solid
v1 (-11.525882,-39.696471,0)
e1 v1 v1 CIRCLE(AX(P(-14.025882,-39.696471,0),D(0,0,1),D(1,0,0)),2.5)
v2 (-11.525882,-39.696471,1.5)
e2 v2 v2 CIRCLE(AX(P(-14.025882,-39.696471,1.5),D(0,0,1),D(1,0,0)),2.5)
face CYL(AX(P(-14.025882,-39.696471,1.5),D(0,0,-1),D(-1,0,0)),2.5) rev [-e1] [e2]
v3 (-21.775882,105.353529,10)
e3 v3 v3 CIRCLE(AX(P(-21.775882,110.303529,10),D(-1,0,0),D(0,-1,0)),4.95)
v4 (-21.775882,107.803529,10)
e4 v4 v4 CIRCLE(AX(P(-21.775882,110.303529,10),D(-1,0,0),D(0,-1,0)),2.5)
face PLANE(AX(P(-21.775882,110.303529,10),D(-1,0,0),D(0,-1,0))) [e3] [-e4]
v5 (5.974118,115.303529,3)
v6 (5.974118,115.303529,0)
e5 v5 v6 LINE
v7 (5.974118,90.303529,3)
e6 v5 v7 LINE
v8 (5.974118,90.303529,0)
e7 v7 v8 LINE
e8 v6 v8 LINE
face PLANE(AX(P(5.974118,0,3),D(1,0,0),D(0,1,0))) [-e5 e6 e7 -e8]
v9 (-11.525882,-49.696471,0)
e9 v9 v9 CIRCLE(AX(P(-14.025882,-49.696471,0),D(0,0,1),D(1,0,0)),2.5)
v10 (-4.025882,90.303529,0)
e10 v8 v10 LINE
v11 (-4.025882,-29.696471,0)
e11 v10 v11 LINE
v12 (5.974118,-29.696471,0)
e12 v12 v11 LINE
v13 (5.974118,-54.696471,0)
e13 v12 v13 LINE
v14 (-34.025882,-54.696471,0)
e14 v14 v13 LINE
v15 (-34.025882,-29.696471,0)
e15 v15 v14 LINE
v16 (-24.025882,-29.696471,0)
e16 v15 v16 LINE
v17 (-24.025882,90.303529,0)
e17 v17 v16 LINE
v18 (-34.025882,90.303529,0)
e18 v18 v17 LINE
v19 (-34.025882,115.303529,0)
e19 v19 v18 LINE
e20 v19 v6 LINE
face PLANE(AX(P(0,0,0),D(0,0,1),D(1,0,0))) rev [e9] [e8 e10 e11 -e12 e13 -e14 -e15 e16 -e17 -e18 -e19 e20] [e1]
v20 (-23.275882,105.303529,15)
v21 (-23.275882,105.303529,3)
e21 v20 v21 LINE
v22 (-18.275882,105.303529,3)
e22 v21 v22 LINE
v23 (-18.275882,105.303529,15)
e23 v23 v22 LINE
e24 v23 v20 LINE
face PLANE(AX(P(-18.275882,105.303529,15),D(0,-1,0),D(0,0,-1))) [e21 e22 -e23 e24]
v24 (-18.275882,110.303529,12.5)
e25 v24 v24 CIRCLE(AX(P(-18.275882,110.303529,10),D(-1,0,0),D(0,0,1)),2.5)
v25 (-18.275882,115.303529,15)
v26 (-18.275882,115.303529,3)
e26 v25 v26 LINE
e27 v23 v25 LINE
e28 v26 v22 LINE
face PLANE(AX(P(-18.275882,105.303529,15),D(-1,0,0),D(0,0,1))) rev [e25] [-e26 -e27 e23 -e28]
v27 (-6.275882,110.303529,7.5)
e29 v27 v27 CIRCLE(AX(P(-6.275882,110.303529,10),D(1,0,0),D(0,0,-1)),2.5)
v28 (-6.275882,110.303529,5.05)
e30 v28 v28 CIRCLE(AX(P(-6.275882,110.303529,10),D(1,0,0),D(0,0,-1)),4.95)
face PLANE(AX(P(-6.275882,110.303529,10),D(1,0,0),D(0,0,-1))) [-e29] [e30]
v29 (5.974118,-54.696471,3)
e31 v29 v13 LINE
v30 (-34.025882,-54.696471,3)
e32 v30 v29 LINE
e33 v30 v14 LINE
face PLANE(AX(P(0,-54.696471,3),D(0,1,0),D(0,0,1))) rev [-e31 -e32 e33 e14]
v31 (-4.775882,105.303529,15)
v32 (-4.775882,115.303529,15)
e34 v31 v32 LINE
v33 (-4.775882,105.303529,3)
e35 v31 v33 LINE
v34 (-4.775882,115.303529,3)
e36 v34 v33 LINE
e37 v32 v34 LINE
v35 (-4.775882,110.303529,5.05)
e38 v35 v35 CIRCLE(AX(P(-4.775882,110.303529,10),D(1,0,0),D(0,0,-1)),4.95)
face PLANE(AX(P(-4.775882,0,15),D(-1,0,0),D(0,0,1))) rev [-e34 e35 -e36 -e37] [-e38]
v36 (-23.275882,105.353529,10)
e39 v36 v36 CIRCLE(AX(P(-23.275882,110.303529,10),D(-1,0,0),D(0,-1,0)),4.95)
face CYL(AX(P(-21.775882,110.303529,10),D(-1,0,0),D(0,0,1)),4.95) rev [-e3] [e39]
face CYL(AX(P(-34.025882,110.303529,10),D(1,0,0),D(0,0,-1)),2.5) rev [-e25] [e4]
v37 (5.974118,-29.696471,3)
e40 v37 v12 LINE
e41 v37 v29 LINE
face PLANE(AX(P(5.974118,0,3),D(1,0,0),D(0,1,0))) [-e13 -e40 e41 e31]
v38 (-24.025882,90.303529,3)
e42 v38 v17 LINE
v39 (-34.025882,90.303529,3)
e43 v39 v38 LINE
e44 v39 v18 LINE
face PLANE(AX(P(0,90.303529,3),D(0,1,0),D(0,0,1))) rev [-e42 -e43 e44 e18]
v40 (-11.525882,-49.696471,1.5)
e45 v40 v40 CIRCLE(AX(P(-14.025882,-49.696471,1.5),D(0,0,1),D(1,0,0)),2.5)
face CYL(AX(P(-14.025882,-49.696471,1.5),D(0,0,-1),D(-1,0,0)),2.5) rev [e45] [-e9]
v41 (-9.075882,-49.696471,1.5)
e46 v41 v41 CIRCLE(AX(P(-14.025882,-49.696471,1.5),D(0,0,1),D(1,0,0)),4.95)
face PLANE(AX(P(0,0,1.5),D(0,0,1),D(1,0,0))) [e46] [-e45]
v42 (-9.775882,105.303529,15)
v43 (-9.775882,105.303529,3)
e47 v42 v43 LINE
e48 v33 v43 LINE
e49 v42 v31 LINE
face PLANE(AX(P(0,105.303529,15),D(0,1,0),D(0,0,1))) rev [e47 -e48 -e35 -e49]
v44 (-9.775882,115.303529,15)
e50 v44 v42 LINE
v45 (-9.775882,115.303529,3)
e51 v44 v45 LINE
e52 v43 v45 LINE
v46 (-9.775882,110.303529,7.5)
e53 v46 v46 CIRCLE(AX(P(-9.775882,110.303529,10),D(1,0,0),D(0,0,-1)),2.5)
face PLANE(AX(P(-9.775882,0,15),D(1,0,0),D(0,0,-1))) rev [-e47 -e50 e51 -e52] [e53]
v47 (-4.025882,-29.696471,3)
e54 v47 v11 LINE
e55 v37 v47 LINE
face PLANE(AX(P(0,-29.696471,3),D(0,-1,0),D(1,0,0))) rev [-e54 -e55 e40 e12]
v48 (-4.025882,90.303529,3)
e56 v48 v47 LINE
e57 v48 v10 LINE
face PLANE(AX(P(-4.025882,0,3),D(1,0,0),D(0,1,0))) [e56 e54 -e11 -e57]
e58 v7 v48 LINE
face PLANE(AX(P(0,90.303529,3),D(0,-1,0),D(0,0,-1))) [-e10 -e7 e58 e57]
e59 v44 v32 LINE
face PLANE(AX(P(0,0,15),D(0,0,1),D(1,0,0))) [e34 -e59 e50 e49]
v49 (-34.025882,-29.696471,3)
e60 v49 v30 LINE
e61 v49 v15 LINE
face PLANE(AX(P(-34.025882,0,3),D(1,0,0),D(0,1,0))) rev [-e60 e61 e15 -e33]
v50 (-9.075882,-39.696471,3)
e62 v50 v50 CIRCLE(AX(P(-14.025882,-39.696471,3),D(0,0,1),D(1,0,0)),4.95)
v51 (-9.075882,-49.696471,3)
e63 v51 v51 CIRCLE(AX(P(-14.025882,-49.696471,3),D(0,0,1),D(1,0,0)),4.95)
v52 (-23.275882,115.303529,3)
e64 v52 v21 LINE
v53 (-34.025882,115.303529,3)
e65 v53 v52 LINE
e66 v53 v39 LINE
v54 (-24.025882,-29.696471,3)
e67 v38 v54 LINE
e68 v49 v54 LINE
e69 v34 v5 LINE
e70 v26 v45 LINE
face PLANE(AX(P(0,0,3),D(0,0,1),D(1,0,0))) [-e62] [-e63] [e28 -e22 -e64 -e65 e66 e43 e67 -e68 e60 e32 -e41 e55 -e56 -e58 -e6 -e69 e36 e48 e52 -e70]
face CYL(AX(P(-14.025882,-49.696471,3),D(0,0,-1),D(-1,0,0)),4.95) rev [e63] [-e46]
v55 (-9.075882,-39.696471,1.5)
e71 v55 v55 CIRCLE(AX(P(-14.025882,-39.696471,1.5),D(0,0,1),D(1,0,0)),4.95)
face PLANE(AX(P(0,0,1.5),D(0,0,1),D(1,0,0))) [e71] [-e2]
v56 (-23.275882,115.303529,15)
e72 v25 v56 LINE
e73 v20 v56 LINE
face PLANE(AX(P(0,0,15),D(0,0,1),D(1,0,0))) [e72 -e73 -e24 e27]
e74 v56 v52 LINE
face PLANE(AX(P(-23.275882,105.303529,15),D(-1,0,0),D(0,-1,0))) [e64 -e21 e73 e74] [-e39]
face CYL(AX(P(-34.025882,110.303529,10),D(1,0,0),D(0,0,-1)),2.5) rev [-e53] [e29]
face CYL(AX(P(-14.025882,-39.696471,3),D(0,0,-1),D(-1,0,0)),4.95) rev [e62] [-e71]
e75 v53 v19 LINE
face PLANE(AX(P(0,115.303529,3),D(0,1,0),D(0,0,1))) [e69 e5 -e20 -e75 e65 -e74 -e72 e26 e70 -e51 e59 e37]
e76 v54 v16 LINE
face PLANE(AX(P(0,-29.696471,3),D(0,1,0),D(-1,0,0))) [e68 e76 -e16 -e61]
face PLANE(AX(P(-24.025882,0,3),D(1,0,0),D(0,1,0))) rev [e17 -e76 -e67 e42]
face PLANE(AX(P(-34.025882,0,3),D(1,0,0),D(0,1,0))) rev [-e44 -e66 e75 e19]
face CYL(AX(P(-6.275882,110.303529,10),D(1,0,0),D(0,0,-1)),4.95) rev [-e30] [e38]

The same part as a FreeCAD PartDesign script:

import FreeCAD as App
import Part
import Sketcher

V = App.Vector

doc = App.newDocument("Part")
body = doc.addObject("PartDesign::Body", "Body")

# Sketch on XY plane
sketch1 = body.newObject("Sketcher::SketchObject", "Sketch")
sketch1.AttachmentSupport = (doc.getObject("XY_Plane"), [""])
sketch1.MapMode = "FlatFace"
sketch1.addGeometry(Part.LineSegment(V(-34, 115.3, 0), V(-34, 90.3, 0)), False)
sketch1.addGeometry(Part.LineSegment(V(-34, 90.3, 0), V(-24, 90.3, 0)), False)
sketch1.addGeometry(Part.LineSegment(V(-24, 90.3, 0), V(-24, -29.7, 0)), False)
sketch1.addGeometry(Part.LineSegment(V(-24, -29.7, 0), V(-34, -29.7, 0)), False)
sketch1.addGeometry(Part.LineSegment(V(-34, -29.7, 0), V(-34, -54.7, 0)), False)
sketch1.addGeometry(Part.LineSegment(V(-34, -54.7, 0), V(6, -54.7, 0)), False)
sketch1.addGeometry(Part.LineSegment(V(6, -54.7, 0), V(6, -29.7, 0)), False)
sketch1.addGeometry(Part.LineSegment(V(6, -29.7, 0), V(-4, -29.7, 0)), False)
sketch1.addGeometry(Part.LineSegment(V(-4, -29.7, 0), V(-4, 90.3, 0)), False)
sketch1.addGeometry(Part.LineSegment(V(-4, 90.3, 0), V(6, 90.3, 0)), False)
sketch1.addGeometry(Part.LineSegment(V(6, 90.3, 0), V(6, 115.3, 0)), False)
sketch1.addGeometry(Part.LineSegment(V(6, 115.3, 0), V(-34, 115.3, 0)), False)
sketch1.addGeometry(Part.Circle(V(-14, -49.7, 0), V(0, 0, 1), 5), False)
sketch1.addGeometry(Part.Circle(V(-14, -39.7, 0), V(0, 0, 1), 5), False)
sketch1.addConstraint(Sketcher.Constraint("Coincident", 0, 2, 1, 1))
sketch1.addConstraint(Sketcher.Constraint("Coincident", 1, 2, 2, 1))
sketch1.addConstraint(Sketcher.Constraint("Coincident", 2, 2, 3, 1))
sketch1.addConstraint(Sketcher.Constraint("Coincident", 3, 2, 4, 1))
sketch1.addConstraint(Sketcher.Constraint("Coincident", 4, 2, 5, 1))
sketch1.addConstraint(Sketcher.Constraint("Coincident", 5, 2, 6, 1))
sketch1.addConstraint(Sketcher.Constraint("Coincident", 6, 2, 7, 1))
sketch1.addConstraint(Sketcher.Constraint("Coincident", 7, 2, 8, 1))
sketch1.addConstraint(Sketcher.Constraint("Coincident", 8, 2, 9, 1))
sketch1.addConstraint(Sketcher.Constraint("Coincident", 9, 2, 10, 1))
sketch1.addConstraint(Sketcher.Constraint("Coincident", 10, 2, 11, 1))
sketch1.addConstraint(Sketcher.Constraint("Coincident", 11, 2, 0, 1))
sketch1.addConstraint(Sketcher.Constraint("Vertical", 0))
sketch1.addConstraint(Sketcher.Constraint("Horizontal", 1))
sketch1.addConstraint(Sketcher.Constraint("Vertical", 2))
sketch1.addConstraint(Sketcher.Constraint("Horizontal", 3))
sketch1.addConstraint(Sketcher.Constraint("Vertical", 4))
sketch1.addConstraint(Sketcher.Constraint("Horizontal", 5))
sketch1.addConstraint(Sketcher.Constraint("Vertical", 6))
sketch1.addConstraint(Sketcher.Constraint("Horizontal", 7))
sketch1.addConstraint(Sketcher.Constraint("Vertical", 8))
sketch1.addConstraint(Sketcher.Constraint("Horizontal", 9))
sketch1.addConstraint(Sketcher.Constraint("Vertical", 10))
sketch1.addConstraint(Sketcher.Constraint("Horizontal", 11))
sketch1.addConstraint(Sketcher.Constraint("Equal", 12, 13))
sketch1.addConstraint(Sketcher.Constraint("Horizontal", 3, 2, 6, 2))
sketch1.addConstraint(Sketcher.Constraint("Horizontal", 1, 2, 8, 2))
sketch1.addConstraint(Sketcher.Constraint("Vertical", 12, 3, 13, 3))
sketch1.addConstraint(Sketcher.Constraint("Vertical", 0, 2, 3, 2))
sketch1.addConstraint(Sketcher.Constraint("Vertical", 6, 2, 9, 2))
sketch1.addConstraint(Sketcher.Constraint("Equal", 3, 7))
sketch1.addConstraint(Sketcher.Constraint("Equal", 0, 4))
sketch1.addConstraint(Sketcher.Constraint("Diameter", 12, 9.9))
sketch1.addConstraint(Sketcher.Constraint("DistanceX", 1, 1, 1, 2, 10.0))
sketch1.addConstraint(Sketcher.Constraint("DistanceX", 5, 1, 5, 2, 40.0))
sketch1.addConstraint(Sketcher.Constraint("DistanceY", 0, 2, 0, 1, 25.0))
sketch1.addConstraint(Sketcher.Constraint("DistanceY", 2, 2, 2, 1, 120.0))
sketch1.addConstraint(Sketcher.Constraint("DistanceY", 12, 3, 13, 3, 10.0))
sketch1.addConstraint(Sketcher.Constraint("DistanceX", 0, 2, 13, 3, 20.0))
sketch1.addConstraint(Sketcher.Constraint("DistanceY", 13, 3, 0, 2, 130.0))
sketch1.addConstraint(Sketcher.Constraint("DistanceY", 12, 3, -1, 1, 49.696471))
sketch1.addConstraint(Sketcher.Constraint("DistanceX", 12, 3, -1, 1, 14.025882))
pad1 = body.newObject("PartDesign::Pad", "Pad")
pad1.Profile = sketch1
pad1.Length = 3

# Sketch on XY plane
sketch2 = body.newObject("Sketcher::SketchObject", "Sketch001")
sketch2.AttachmentSupport = (doc.getObject("XY_Plane"), [""])
sketch2.MapMode = "FlatFace"
sketch2.addGeometry(Part.Circle(V(-14, -39.7, 0), V(0, 0, 1), 5), False)
sketch2.addGeometry(Part.Circle(V(-14, -39.7, 0), V(0, 0, 1), 2.5), False)
sketch2.addGeometry(Part.Circle(V(-14, -49.7, 0), V(0, 0, 1), 5), False)
sketch2.addGeometry(Part.Circle(V(-14, -49.7, 0), V(0, 0, 1), 2.5), False)
sketch2.addConstraint(Sketcher.Constraint("Coincident", 1, 3, 0, 3))
sketch2.addConstraint(Sketcher.Constraint("Coincident", 3, 3, 2, 3))
sketch2.addConstraint(Sketcher.Constraint("Equal", 0, 2))
sketch2.addConstraint(Sketcher.Constraint("Equal", 1, 3))
sketch2.addConstraint(Sketcher.Constraint("Vertical", 1, 3, 2, 3))
sketch2.addConstraint(Sketcher.Constraint("Diameter", 1, 5.0))
sketch2.addConstraint(Sketcher.Constraint("Diameter", 0, 9.9))
sketch2.addConstraint(Sketcher.Constraint("DistanceY", 2, 3, 0, 3, 10.0))
sketch2.addConstraint(Sketcher.Constraint("DistanceY", 0, 3, -1, 1, 39.696471))
sketch2.addConstraint(Sketcher.Constraint("DistanceX", 0, 3, -1, 1, 14.025882))
pad2 = body.newObject("PartDesign::Pad", "Pad001")
pad2.Profile = sketch2
pad2.Length = 1.5

# Sketch on XY plane
sketch3 = body.newObject("Sketcher::SketchObject", "Sketch002")
sketch3.AttachmentSupport = (doc.getObject("XY_Plane"), [""])
sketch3.MapMode = "FlatFace"
sketch3.addGeometry(Part.LineSegment(V(-10, 115, 0), V(-10, 105, 0)), False)
sketch3.addGeometry(Part.LineSegment(V(-10, 105, 0), V(-5, 105, 0)), False)
sketch3.addGeometry(Part.LineSegment(V(-5, 105, 0), V(-5, 115, 0)), False)
sketch3.addGeometry(Part.LineSegment(V(-5, 115, 0), V(-10, 115, 0)), False)
sketch3.addGeometry(Part.LineSegment(V(-23, 115, 0), V(-23, 105, 0)), False)
sketch3.addGeometry(Part.LineSegment(V(-23, 105, 0), V(-18, 105, 0)), False)
sketch3.addGeometry(Part.LineSegment(V(-18, 105, 0), V(-18, 115, 0)), False)
sketch3.addGeometry(Part.LineSegment(V(-18, 115, 0), V(-23, 115, 0)), False)
sketch3.addConstraint(Sketcher.Constraint("Coincident", 0, 2, 1, 1))
sketch3.addConstraint(Sketcher.Constraint("Coincident", 1, 2, 2, 1))
sketch3.addConstraint(Sketcher.Constraint("Coincident", 2, 2, 3, 1))
sketch3.addConstraint(Sketcher.Constraint("Coincident", 3, 2, 0, 1))
sketch3.addConstraint(Sketcher.Constraint("Coincident", 4, 2, 5, 1))
sketch3.addConstraint(Sketcher.Constraint("Coincident", 5, 2, 6, 1))
sketch3.addConstraint(Sketcher.Constraint("Coincident", 6, 2, 7, 1))
sketch3.addConstraint(Sketcher.Constraint("Coincident", 7, 2, 4, 1))
sketch3.addConstraint(Sketcher.Constraint("Vertical", 0))
sketch3.addConstraint(Sketcher.Constraint("Horizontal", 1))
sketch3.addConstraint(Sketcher.Constraint("Vertical", 2))
sketch3.addConstraint(Sketcher.Constraint("Horizontal", 3))
sketch3.addConstraint(Sketcher.Constraint("Vertical", 4))
sketch3.addConstraint(Sketcher.Constraint("Horizontal", 5))
sketch3.addConstraint(Sketcher.Constraint("Vertical", 6))
sketch3.addConstraint(Sketcher.Constraint("Horizontal", 7))
sketch3.addConstraint(Sketcher.Constraint("Horizontal", 1, 2, 4, 2))
sketch3.addConstraint(Sketcher.Constraint("Horizontal", 3, 2, 6, 2))
sketch3.addConstraint(Sketcher.Constraint("Equal", 3, 5))
sketch3.addConstraint(Sketcher.Constraint("DistanceX", 1, 1, 1, 2, 5.0))
sketch3.addConstraint(Sketcher.Constraint("DistanceY", 0, 2, 0, 1, 10.0))
sketch3.addConstraint(Sketcher.Constraint("DistanceX", 4, 2, 0, 2, 13.5))
sketch3.addConstraint(Sketcher.Constraint("DistanceY", -1, 1, 0, 2, 105.303529))
sketch3.addConstraint(Sketcher.Constraint("DistanceX", 0, 2, -1, 1, 9.775882))
pad3 = body.newObject("PartDesign::Pad", "Pad002")
pad3.Profile = sketch3
pad3.Length = 15

# Sketch on YZ plane
sketch4 = body.newObject("Sketcher::SketchObject", "Sketch003")
sketch4.AttachmentSupport = (doc.getObject("YZ_Plane"), [""])
sketch4.MapMode = "FlatFace"
sketch4.AttachmentOffset = App.Placement(V(0, 0, -4.775882), App.Rotation())
sketch4.addGeometry(Part.Circle(V(110.3, 10, 0), V(0, 0, 1), 5), False)
sketch4.addGeometry(Part.Circle(V(110.3, 10, 0), V(0, 0, 1), 2.5), False)
sketch4.addConstraint(Sketcher.Constraint("Coincident", 1, 3, 0, 3))
sketch4.addConstraint(Sketcher.Constraint("Diameter", 1, 5.0))
sketch4.addConstraint(Sketcher.Constraint("Diameter", 0, 9.9))
sketch4.addConstraint(Sketcher.Constraint("DistanceY", -1, 1, 0, 3, 10.0))
sketch4.addConstraint(Sketcher.Constraint("DistanceX", -1, 1, 0, 3, 110.303529))
pocket1 = body.newObject("PartDesign::Pocket", "Pocket")
pocket1.Profile = sketch4
pocket1.Length = 1.5

# Sketch on YZ plane
sketch5 = body.newObject("Sketcher::SketchObject", "Sketch004")
sketch5.AttachmentSupport = (doc.getObject("YZ_Plane"), [""])
sketch5.MapMode = "FlatFace"
sketch5.AttachmentOffset = App.Placement(V(0, 0, -21.775882), App.Rotation())
sketch5.addGeometry(Part.Circle(V(110.3, 10, 0), V(0, 0, 1), 5), False)
sketch5.addGeometry(Part.Circle(V(110.3, 10, 0), V(0, 0, 1), 2.5), False)
sketch5.addConstraint(Sketcher.Constraint("Coincident", 1, 3, 0, 3))
sketch5.addConstraint(Sketcher.Constraint("Diameter", 1, 5.0))
sketch5.addConstraint(Sketcher.Constraint("Diameter", 0, 9.9))
sketch5.addConstraint(Sketcher.Constraint("DistanceY", -1, 1, 0, 3, 10.0))
sketch5.addConstraint(Sketcher.Constraint("DistanceX", -1, 1, 0, 3, 110.303529))
pocket2 = body.newObject("PartDesign::Pocket", "Pocket001")
pocket2.Profile = sketch5
pocket2.Length = 1.5

# Sketch on YZ plane
sketch6 = body.newObject("Sketcher::SketchObject", "Sketch005")
sketch6.AttachmentSupport = (doc.getObject("YZ_Plane"), [""])
sketch6.MapMode = "FlatFace"
sketch6.AttachmentOffset = App.Placement(V(0, 0, -4.775882), App.Rotation())
sketch6.addGeometry(Part.Circle(V(110.3, 10, 0), V(0, 0, 1), 2.5), False)
sketch6.addConstraint(Sketcher.Constraint("Diameter", 0, 5.0))
sketch6.addConstraint(Sketcher.Constraint("DistanceY", -1, 1, 0, 3, 10.0))
sketch6.addConstraint(Sketcher.Constraint("DistanceX", -1, 1, 0, 3, 110.303529))
pocket3 = body.newObject("PartDesign::Pocket", "Pocket002")
pocket3.Profile = sketch6
pocket3.Type = "ThroughAll"

doc.recompute()
